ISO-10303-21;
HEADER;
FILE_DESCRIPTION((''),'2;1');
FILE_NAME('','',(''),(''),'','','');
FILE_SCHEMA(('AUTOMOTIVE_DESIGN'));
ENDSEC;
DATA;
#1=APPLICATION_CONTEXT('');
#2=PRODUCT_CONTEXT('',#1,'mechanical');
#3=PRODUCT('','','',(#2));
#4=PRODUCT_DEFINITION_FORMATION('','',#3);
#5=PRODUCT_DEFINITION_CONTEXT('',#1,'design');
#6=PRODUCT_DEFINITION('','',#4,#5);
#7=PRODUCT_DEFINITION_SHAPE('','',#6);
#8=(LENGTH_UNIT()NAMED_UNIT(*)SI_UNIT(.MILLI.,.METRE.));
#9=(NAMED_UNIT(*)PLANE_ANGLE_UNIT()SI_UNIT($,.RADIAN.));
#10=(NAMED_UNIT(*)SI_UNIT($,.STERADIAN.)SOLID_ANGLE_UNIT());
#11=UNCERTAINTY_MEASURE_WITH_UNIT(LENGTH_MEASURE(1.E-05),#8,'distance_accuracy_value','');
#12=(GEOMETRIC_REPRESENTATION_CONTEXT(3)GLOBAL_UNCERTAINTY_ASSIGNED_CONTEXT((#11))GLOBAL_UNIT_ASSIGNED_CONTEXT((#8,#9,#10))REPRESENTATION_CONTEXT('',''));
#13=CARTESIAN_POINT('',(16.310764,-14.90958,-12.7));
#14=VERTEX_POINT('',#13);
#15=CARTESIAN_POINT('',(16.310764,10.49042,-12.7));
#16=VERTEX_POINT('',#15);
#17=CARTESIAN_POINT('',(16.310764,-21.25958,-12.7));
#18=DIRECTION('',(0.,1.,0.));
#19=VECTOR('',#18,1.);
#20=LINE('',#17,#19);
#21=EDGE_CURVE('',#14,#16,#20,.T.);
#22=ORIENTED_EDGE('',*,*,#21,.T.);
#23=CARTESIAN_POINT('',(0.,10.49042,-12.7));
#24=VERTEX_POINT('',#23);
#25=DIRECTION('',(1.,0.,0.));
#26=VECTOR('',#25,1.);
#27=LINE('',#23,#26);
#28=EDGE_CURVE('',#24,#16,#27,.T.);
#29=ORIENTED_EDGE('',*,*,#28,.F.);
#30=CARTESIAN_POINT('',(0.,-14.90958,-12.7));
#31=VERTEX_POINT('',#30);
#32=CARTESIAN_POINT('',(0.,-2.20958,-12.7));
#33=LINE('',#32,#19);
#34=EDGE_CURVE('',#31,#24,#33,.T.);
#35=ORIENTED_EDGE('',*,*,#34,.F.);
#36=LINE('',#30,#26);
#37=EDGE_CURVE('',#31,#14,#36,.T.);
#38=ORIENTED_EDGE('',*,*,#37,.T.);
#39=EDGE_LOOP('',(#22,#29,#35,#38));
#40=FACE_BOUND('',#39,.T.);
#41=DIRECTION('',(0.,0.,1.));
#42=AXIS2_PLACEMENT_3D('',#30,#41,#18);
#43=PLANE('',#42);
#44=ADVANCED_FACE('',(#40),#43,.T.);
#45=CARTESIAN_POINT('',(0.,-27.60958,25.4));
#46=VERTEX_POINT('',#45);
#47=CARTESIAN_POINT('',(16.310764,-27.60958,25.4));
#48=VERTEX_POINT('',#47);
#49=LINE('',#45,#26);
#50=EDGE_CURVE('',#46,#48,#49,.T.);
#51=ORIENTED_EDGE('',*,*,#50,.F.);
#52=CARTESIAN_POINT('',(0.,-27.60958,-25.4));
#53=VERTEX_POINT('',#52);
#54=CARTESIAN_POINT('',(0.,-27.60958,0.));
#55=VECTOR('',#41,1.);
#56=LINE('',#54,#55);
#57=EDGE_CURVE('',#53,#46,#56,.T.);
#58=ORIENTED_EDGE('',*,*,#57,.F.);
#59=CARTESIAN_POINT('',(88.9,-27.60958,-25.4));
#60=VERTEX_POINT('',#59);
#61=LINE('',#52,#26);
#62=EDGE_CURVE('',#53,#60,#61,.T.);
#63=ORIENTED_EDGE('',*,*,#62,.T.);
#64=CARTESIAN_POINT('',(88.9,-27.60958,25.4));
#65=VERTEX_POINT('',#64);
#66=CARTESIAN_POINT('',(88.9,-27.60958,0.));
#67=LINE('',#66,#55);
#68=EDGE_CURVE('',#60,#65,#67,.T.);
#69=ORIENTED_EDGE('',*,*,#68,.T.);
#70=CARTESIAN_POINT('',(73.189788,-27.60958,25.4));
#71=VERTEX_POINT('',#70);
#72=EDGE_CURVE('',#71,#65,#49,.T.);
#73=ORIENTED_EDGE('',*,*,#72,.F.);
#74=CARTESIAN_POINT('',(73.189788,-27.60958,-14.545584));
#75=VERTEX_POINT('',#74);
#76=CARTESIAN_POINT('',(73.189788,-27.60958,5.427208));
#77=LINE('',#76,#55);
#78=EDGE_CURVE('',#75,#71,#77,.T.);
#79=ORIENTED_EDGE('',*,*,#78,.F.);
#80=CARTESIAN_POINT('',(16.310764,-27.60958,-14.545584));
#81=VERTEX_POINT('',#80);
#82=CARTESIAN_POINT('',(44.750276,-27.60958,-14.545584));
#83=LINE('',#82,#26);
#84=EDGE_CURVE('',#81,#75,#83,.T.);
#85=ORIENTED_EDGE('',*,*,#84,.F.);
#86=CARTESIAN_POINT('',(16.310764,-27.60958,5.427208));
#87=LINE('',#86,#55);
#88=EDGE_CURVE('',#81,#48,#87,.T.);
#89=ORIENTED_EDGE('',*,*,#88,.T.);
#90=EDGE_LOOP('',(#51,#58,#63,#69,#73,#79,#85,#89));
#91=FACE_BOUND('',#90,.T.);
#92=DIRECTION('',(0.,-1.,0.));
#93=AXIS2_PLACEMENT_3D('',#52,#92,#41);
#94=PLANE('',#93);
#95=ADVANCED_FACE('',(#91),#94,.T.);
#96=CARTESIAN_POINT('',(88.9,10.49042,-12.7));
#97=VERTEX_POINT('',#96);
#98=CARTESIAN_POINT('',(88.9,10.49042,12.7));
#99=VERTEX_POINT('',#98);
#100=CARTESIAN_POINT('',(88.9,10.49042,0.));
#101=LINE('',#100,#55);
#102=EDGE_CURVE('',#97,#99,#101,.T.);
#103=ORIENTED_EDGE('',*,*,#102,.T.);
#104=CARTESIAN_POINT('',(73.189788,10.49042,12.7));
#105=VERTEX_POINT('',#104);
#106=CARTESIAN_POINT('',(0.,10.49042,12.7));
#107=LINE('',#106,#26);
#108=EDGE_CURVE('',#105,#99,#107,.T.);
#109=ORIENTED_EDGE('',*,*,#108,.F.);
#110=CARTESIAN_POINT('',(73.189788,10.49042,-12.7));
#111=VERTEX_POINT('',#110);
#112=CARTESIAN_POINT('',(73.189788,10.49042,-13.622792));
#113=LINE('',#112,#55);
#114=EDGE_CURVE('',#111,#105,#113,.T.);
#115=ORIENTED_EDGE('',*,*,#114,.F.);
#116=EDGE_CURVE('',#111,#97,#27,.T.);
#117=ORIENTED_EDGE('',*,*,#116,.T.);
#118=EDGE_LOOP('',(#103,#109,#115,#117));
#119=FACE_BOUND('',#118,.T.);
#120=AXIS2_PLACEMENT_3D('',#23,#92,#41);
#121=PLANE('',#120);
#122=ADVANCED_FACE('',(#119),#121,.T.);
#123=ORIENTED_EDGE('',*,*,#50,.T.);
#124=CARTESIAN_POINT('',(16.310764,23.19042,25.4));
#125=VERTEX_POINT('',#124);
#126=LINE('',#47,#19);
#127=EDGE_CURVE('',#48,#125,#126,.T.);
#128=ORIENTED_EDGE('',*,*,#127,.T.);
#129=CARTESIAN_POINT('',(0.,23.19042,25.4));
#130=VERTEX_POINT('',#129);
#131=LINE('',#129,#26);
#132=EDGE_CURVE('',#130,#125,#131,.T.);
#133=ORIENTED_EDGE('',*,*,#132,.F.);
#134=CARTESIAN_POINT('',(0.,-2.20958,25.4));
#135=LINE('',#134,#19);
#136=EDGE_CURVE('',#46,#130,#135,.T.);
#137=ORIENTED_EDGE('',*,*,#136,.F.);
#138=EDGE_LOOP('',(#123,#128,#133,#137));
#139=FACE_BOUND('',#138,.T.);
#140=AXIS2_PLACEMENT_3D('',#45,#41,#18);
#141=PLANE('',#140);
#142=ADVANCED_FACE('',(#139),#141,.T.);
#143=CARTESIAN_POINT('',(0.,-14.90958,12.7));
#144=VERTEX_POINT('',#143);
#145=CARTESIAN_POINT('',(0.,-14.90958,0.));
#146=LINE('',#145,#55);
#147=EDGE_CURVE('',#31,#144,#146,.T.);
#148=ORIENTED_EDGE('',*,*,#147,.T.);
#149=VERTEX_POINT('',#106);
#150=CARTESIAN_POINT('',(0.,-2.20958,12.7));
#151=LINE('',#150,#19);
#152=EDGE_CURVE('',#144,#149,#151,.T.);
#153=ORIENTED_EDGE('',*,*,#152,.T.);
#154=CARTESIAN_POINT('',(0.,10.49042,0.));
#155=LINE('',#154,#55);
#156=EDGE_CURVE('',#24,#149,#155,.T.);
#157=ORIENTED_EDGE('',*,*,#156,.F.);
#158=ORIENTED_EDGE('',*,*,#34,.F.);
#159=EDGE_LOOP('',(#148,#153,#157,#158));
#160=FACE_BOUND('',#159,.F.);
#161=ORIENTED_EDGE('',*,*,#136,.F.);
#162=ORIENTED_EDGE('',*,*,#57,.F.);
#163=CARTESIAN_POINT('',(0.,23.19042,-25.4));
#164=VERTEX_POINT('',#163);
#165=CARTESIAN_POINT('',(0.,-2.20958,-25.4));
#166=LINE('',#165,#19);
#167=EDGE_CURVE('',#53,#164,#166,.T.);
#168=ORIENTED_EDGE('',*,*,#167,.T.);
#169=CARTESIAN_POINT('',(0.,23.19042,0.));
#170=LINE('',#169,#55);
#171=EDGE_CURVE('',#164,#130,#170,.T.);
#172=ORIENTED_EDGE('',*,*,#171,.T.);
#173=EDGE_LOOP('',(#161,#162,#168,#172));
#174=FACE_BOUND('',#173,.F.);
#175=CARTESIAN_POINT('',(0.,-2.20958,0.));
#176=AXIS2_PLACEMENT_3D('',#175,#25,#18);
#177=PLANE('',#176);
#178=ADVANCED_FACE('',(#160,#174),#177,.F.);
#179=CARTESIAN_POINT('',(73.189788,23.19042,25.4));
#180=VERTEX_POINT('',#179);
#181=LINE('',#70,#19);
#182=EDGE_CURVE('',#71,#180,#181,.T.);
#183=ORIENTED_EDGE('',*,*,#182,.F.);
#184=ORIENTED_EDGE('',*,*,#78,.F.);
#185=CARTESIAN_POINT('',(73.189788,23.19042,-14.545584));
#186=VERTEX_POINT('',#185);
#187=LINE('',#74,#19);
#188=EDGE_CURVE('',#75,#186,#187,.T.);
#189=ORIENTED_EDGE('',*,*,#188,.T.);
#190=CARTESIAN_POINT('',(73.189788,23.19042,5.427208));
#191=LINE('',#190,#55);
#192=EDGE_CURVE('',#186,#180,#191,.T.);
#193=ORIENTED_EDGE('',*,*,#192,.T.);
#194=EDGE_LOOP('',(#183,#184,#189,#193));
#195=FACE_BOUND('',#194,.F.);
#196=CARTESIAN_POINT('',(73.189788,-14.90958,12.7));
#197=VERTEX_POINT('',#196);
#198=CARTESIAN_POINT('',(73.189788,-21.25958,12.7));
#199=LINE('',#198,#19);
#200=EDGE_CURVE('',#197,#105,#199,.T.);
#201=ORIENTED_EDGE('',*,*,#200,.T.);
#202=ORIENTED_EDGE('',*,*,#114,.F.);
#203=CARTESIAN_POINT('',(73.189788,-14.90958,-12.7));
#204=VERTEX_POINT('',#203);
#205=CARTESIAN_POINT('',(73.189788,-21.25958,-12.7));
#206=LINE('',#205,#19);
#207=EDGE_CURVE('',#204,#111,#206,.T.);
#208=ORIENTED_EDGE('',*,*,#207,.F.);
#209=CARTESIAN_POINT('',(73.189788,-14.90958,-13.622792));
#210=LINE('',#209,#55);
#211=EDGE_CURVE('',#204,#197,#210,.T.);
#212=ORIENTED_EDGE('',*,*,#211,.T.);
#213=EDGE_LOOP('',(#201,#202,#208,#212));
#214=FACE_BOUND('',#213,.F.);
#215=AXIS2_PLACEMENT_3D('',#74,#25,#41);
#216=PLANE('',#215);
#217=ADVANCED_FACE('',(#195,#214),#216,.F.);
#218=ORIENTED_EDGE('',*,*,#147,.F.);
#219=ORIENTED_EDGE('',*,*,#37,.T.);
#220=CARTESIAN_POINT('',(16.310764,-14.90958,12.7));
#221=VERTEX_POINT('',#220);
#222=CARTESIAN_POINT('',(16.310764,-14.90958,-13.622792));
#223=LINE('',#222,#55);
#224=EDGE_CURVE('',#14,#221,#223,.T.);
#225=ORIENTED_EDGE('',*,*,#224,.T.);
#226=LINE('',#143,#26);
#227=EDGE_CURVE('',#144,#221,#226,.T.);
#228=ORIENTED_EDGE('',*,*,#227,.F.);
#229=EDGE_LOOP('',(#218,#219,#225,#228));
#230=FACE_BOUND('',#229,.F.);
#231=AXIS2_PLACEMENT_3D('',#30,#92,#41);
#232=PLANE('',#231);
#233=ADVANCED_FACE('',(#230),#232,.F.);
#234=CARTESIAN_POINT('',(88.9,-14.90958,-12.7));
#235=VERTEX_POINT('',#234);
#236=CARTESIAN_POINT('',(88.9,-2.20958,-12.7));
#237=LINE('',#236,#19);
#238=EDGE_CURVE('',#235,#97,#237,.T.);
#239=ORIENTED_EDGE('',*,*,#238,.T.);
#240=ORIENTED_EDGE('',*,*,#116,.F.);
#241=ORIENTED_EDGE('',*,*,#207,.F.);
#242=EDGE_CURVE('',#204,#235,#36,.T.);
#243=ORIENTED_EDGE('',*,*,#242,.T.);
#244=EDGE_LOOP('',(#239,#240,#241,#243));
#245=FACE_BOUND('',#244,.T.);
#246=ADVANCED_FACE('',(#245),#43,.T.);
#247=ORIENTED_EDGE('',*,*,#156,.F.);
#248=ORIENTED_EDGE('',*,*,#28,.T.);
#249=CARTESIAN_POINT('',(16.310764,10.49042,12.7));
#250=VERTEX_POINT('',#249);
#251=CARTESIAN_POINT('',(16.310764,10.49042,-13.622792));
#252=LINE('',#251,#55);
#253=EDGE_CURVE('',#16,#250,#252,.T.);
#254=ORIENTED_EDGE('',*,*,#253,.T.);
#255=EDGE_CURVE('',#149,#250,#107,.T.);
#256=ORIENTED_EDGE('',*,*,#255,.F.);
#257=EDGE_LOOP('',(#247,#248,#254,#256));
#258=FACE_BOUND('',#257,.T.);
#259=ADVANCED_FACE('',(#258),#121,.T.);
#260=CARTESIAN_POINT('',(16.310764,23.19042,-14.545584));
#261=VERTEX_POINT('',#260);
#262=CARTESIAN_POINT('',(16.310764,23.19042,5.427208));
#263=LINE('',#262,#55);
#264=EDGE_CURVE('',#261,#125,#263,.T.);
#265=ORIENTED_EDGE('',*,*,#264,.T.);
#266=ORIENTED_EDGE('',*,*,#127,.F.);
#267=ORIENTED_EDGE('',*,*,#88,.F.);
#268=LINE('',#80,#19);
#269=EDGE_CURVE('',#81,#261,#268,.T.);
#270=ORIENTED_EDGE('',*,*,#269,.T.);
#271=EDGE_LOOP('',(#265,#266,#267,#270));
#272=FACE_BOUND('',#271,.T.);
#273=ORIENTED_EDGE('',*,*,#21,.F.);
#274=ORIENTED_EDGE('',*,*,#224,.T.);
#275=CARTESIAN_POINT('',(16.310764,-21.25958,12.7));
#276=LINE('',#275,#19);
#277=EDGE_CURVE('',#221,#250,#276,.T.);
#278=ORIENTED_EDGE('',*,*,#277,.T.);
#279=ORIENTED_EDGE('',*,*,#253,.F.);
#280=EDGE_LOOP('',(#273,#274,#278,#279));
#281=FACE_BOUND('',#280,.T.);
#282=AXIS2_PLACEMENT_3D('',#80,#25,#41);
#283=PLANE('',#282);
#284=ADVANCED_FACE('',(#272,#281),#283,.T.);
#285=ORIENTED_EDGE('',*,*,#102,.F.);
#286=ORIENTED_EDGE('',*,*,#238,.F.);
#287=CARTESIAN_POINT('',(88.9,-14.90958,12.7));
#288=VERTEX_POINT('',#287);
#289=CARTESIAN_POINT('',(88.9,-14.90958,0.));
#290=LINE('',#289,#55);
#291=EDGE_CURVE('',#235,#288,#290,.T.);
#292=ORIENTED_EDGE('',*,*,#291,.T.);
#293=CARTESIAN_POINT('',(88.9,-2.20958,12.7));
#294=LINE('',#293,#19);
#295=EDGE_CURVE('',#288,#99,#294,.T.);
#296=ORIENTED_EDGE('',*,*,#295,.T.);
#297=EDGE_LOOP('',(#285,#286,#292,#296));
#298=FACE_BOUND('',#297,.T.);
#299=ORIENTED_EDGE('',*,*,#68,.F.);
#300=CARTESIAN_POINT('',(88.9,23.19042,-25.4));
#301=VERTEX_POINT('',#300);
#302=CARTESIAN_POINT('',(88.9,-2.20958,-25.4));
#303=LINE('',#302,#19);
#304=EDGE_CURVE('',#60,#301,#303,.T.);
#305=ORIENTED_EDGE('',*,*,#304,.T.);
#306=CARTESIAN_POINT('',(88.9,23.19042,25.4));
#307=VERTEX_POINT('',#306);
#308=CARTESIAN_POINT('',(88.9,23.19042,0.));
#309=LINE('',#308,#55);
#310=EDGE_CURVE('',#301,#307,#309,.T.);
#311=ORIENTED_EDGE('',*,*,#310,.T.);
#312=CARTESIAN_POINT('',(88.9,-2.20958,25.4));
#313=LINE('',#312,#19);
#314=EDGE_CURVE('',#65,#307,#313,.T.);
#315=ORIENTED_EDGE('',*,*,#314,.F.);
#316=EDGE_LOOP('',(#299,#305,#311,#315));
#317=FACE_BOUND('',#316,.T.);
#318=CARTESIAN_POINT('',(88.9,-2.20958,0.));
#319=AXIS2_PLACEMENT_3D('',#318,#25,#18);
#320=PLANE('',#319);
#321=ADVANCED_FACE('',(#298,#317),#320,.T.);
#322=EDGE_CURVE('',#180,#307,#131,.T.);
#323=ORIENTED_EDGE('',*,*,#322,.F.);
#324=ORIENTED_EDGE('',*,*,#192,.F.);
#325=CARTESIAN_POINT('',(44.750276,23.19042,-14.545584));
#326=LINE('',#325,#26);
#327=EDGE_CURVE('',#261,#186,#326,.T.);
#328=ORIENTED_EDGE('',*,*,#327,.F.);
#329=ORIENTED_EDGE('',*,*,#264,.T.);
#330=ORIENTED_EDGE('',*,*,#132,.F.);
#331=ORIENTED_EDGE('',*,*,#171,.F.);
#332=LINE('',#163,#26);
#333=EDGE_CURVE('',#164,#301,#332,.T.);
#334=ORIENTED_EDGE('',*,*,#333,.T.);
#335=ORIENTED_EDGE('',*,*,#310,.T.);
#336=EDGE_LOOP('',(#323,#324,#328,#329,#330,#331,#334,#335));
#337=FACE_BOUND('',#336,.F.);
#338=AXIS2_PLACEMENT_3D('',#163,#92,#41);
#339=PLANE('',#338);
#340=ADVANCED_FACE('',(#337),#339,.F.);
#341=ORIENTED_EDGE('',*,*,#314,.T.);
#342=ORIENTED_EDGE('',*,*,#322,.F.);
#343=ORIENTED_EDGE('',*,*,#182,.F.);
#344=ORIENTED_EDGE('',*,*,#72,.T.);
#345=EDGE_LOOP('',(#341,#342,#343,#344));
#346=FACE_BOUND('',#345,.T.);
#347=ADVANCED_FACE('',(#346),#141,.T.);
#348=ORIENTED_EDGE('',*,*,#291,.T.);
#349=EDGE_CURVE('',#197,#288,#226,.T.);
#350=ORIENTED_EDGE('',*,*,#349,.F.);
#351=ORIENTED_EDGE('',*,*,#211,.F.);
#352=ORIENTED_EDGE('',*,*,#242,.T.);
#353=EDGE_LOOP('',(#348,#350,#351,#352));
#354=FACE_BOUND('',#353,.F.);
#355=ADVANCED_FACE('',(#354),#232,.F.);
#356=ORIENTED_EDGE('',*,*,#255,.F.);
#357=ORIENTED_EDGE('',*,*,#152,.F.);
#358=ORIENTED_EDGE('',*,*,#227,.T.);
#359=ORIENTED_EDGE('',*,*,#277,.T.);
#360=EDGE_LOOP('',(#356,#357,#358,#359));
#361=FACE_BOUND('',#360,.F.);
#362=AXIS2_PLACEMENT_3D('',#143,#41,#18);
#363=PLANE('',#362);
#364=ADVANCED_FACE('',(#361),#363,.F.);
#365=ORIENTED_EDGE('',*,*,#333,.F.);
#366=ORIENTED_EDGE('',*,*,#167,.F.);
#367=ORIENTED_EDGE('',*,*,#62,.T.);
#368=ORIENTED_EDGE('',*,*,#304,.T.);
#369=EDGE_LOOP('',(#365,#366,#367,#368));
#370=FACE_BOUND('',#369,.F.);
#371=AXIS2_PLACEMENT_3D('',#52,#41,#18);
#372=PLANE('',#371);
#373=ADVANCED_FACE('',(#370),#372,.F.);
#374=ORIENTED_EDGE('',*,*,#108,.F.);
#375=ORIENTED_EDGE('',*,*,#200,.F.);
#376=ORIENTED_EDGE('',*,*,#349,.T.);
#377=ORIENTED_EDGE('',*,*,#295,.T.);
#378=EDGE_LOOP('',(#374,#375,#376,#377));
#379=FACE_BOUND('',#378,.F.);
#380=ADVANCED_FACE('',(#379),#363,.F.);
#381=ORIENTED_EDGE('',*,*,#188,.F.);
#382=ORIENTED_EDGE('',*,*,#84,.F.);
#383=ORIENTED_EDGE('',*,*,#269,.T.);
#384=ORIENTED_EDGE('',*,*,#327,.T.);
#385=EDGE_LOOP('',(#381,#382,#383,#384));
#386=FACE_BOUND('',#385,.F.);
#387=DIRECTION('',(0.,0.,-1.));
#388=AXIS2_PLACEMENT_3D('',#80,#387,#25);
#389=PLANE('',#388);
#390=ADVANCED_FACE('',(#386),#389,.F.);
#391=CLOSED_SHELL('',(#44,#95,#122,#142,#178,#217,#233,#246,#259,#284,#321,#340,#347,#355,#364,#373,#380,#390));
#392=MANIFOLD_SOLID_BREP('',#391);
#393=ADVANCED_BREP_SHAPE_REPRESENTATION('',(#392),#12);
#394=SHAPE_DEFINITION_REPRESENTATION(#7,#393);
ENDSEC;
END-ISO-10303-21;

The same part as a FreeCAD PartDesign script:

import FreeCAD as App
import Part
import Sketcher
Q = App.Units.Quantity


def add_polygon(sketch, points):
    """Adds a closed chain of lines whose ends are joined by coincident constraints."""
    first, n = sketch.GeometryCount, len(points)
    for a, b in zip(points, points[1:] + points[:1]):
        sketch.addGeometry(Part.LineSegment(App.Vector(*a, 0), App.Vector(*b, 0)), False)
    for i in range(n):
        sketch.addConstraint(Sketcher.Constraint("Coincident", first + i, 2, first + (i + 1) % n, 1))

doc = App.newDocument("Part")
body = doc.addObject("PartDesign::Body", "Body")

# Sketch on YZ plane
sketch1 = doc.addObject("Sketcher::SketchObject", "Sketch")
body.addObject(sketch1)
sketch1.AttachmentSupport = (doc.YZ_Plane, [""])
sketch1.MapMode = "FlatFace"
add_polygon(sketch1, [(-28, 25), (-28, -25), (23, -25), (23, 25)])  # lines 0-3
add_polygon(sketch1, [(10, -13), (-15, -13), (-15, 13), (10, 13)])  # lines 4-7
sketch1.addConstraint([
    Sketcher.Constraint("Vertical", 0),
    Sketcher.Constraint("Horizontal", 1),
    Sketcher.Constraint("Vertical", 2),
    Sketcher.Constraint("Horizontal", 3),
    Sketcher.Constraint("Horizontal", 4),
    Sketcher.Constraint("Vertical", 5),
    Sketcher.Constraint("Horizontal", 6),
    Sketcher.Constraint("Vertical", 7),
    Sketcher.Constraint("Equal", 3, 0),
    Sketcher.Constraint("Equal", 6, 5),
    Sketcher.Constraint("DistanceX", 1, 1, 1, 2, Q("2 in")),
    Sketcher.Constraint("DistanceX", 4, 2, 4, 1, Q("1 in")),
    Sketcher.Constraint("DistanceY", 0, 2, -1, 1, Q("1 in")),
    Sketcher.Constraint("DistanceY", 4, 2, -1, 1, Q("0.5 in")),
    Sketcher.Constraint("DistanceX", 0, 2, 4, 2, Q("0.5 in")),
    Sketcher.Constraint("DistanceX", 0, 2, -1, 1, Q("27.60958 mm")),
])
pad1 = doc.addObject("PartDesign::Pad", "Pad")
body.addObject(pad1)
pad1.Profile = sketch1
pad1.Length = Q("3.5 in")

# Sketch on XZ plane
sketch2 = doc.addObject("Sketcher::SketchObject", "Sketch001")
body.addObject(sketch2)
sketch2.AttachmentSupport = (doc.XZ_Plane, [""])
sketch2.MapMode = "FlatFace"
sketch2.AttachmentOffset = App.Placement(App.Vector(0, 0, 27.60958), App.Rotation())
add_polygon(sketch2, [(16, 25), (16, -15), (73, -15), (73, 25)])  # lines 0-3
sketch2.addConstraint([
    Sketcher.Constraint("Vertical", 0),
    Sketcher.Constraint("Horizontal", 1),
    Sketcher.Constraint("Vertical", 2),
    Sketcher.Constraint("Horizontal", 3),
    Sketcher.Constraint("DistanceY", -1, 1, 2, 2, Q("1 in")),
    Sketcher.Constraint("DistanceX", 1, 1, 1, 2, Q("56.879024 mm")),
    Sketcher.Constraint("DistanceY", 0, 2, 0, 1, Q("39.945584 mm")),
    Sketcher.Constraint("DistanceX", -1, 1, 0, 2, Q("16.310764 mm")),
])
pocket1 = doc.addObject("PartDesign::Pocket", "Pocket")
body.addObject(pocket1)
pocket1.Profile = sketch2
pocket1.Length = Q("2 in")

doc.recompute()
